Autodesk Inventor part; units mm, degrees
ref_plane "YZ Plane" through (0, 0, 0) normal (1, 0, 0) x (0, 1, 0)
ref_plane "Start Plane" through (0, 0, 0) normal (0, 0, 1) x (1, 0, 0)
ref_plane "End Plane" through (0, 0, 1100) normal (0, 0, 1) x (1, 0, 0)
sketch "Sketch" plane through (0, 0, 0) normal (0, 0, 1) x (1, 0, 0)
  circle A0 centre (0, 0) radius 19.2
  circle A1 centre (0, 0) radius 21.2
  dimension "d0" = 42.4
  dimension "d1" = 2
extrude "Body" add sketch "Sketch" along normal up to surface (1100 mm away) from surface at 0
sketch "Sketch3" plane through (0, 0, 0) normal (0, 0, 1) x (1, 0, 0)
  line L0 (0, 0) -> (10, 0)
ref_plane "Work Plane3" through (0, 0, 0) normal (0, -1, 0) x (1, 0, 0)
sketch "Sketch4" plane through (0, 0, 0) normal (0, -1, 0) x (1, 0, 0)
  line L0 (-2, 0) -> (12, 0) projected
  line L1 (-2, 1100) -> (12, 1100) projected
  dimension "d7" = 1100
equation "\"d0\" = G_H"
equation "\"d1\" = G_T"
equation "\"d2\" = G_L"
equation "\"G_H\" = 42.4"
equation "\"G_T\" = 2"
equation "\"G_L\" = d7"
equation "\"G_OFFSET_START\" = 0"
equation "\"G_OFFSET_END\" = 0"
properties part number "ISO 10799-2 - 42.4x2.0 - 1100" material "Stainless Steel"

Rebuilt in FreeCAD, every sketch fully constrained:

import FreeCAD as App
import Part
import Sketcher
from FreeCAD import Vector

doc = App.newDocument("Part")
body = doc.addObject("PartDesign::Body", "Body")

# Sketch on XY plane
sketch1 = body.newObject("Sketcher::SketchObject", "Sketch")
sketch1.AttachmentSupport = (doc.getObject("XY_Plane"), [""])
sketch1.MapMode = "FlatFace"
sketch1.addGeometry(Part.Circle(Vector(0, 0, 0), Vector(0, 0, 1), 21.2), False)
sketch1.addGeometry(Part.Circle(Vector(0, 0, 0), Vector(0, 0, 1), 19.2), False)
sketch1.addConstraint(Sketcher.Constraint("Coincident", 0, 3, -1, 1))
sketch1.addConstraint(Sketcher.Constraint("Coincident", 1, 3, -1, 1))
sketch1.addConstraint(Sketcher.Constraint("Diameter", 0, 42.4))
sketch1.addConstraint(Sketcher.Constraint("Diameter", 1, 38.4))
pad1 = body.newObject("PartDesign::Pad", "Pad")
pad1.Profile = sketch1
pad1.Length = 1100

doc.recompute()
